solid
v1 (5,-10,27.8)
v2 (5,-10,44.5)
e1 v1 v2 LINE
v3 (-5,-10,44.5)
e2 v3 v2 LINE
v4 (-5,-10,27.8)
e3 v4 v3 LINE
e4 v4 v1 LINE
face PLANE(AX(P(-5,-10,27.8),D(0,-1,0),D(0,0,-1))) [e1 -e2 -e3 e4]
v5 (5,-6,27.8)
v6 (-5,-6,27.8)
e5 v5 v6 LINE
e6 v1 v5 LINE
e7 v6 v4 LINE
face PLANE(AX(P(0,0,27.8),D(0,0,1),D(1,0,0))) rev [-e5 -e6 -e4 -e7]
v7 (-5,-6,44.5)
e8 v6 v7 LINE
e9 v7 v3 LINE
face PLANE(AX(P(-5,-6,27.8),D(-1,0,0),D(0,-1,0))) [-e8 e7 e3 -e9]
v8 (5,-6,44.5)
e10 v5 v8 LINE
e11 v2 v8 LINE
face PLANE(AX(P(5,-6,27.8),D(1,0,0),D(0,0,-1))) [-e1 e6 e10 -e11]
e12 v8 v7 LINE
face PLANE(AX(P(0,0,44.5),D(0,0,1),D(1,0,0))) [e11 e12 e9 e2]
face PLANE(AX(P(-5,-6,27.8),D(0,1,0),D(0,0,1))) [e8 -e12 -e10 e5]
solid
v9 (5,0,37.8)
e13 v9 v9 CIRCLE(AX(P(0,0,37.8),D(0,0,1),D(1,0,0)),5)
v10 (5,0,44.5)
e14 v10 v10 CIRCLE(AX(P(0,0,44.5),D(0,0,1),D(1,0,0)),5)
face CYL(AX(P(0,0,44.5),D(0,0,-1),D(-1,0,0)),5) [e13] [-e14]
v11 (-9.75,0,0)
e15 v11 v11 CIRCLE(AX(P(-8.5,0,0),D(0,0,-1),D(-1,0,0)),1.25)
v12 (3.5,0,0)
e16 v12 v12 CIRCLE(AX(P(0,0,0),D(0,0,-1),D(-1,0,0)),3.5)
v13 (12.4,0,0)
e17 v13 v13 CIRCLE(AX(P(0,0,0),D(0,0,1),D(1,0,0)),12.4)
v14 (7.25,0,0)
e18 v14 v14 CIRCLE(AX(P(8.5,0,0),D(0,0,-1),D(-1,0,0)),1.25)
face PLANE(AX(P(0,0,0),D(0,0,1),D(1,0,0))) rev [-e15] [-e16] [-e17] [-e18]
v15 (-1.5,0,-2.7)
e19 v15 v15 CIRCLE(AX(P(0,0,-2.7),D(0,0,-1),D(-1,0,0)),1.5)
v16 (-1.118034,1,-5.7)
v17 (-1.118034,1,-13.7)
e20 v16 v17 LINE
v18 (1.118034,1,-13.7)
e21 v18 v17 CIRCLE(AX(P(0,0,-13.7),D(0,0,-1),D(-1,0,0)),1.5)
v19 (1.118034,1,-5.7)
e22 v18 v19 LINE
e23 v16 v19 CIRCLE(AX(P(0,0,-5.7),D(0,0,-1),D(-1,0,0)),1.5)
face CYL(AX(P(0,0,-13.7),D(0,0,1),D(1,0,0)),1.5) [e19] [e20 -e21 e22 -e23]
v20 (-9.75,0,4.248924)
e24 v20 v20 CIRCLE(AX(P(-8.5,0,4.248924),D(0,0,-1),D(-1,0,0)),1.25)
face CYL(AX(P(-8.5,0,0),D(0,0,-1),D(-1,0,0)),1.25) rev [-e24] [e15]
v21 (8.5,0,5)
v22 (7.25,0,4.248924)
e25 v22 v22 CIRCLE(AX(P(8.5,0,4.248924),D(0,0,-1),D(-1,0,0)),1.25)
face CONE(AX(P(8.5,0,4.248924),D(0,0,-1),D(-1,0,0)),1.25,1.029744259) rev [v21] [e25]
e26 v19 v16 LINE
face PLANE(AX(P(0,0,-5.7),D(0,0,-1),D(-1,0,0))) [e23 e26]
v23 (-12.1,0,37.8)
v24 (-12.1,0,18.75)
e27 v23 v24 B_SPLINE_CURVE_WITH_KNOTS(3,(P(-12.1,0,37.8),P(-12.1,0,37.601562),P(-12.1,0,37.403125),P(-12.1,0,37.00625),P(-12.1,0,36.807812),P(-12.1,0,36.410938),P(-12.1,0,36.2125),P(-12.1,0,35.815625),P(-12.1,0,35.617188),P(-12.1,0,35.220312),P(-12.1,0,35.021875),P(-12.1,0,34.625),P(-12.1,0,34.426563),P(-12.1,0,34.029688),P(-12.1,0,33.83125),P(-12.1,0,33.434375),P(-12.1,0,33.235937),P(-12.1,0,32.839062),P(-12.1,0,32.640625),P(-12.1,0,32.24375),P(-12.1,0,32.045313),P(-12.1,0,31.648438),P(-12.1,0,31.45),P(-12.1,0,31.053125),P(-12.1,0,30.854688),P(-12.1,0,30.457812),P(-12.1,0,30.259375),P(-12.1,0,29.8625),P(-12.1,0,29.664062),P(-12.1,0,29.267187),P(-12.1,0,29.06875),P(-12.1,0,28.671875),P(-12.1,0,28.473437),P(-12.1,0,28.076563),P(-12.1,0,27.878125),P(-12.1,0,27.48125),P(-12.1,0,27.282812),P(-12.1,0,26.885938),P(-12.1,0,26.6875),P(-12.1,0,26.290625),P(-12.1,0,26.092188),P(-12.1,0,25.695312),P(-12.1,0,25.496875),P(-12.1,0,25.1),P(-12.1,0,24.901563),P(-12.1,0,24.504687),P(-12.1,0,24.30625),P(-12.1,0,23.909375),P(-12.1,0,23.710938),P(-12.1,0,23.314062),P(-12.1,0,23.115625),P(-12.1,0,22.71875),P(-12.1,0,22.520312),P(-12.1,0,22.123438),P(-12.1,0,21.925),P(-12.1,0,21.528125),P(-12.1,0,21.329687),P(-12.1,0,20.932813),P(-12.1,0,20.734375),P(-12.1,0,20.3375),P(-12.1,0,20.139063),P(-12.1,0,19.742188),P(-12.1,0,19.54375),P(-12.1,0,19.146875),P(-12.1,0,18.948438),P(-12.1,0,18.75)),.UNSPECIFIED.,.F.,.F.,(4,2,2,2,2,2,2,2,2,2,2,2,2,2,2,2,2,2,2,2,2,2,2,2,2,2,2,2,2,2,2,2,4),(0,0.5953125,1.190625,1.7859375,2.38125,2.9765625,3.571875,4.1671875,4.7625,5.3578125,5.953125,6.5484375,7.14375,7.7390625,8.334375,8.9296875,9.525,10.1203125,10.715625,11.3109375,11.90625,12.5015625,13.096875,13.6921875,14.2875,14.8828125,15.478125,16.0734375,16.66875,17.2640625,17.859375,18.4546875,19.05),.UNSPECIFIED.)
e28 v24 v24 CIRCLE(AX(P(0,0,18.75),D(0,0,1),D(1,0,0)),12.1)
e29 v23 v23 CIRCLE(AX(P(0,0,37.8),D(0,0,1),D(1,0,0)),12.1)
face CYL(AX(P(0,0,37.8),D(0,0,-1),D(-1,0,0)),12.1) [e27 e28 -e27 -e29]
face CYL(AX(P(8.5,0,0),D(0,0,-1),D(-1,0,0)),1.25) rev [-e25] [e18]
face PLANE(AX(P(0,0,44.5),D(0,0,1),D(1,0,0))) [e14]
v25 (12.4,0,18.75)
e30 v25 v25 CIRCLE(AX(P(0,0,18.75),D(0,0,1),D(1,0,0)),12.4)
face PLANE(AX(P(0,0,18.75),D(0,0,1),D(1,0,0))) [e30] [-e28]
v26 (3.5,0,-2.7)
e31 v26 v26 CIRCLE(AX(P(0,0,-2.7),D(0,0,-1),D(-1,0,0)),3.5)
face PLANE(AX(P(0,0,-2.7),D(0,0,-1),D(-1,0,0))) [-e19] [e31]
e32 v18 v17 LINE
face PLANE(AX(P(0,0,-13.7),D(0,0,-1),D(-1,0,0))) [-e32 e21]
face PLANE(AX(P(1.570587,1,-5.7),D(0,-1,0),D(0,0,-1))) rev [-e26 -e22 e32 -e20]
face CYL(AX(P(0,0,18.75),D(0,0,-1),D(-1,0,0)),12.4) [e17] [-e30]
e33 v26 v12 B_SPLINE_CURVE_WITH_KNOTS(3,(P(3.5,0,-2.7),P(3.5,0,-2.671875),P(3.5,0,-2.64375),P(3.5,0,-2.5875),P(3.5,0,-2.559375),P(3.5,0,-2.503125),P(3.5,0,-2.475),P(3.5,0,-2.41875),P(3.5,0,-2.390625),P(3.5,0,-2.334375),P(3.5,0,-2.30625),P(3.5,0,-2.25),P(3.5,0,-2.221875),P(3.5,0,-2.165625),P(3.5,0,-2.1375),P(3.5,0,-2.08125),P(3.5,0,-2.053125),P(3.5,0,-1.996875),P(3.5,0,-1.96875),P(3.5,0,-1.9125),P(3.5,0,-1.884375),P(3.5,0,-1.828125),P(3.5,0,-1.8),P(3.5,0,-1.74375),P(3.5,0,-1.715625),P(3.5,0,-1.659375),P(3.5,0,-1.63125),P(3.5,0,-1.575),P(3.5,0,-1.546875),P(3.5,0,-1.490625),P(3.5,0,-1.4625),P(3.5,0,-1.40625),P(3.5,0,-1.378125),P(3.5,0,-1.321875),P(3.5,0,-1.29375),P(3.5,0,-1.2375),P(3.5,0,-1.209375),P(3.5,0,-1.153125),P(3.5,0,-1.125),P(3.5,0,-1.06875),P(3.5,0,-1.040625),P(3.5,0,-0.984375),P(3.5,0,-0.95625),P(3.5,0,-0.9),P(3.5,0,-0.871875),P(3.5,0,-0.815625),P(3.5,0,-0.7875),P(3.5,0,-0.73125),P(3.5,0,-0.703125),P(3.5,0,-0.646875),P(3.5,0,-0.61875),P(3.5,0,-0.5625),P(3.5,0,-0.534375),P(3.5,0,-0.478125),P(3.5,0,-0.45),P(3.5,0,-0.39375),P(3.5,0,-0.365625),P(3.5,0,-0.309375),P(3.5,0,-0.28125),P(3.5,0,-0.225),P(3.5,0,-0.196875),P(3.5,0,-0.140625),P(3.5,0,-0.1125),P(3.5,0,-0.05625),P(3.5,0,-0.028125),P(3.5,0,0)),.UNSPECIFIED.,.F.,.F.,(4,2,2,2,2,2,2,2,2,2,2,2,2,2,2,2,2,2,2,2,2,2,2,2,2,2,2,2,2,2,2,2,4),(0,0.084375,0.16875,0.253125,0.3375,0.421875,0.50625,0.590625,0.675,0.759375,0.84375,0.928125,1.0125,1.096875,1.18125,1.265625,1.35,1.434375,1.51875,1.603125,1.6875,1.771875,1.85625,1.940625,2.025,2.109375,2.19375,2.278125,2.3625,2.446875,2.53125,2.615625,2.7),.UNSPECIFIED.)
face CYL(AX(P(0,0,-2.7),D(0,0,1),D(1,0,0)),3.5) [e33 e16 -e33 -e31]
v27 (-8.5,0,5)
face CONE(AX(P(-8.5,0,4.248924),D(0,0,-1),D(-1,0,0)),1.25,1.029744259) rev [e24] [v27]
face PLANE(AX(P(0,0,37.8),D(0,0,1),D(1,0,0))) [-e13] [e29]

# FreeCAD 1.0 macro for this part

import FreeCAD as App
import Part
import Sketcher
from FreeCAD import Vector
Q = App.Units.Quantity


def add_polygon(sketch, points):
    """Adds a closed chain of lines whose ends are joined by coincident constraints."""
    first, n = sketch.GeometryCount, len(points)
    for a, b in zip(points, points[1:] + points[:1]):
        sketch.addGeometry(Part.LineSegment(App.Vector(*a, 0), App.Vector(*b, 0)), False)
    for i in range(n):
        sketch.addConstraint(Sketcher.Constraint("Coincident", first + i, 2, first + (i + 1) % n, 1))

doc = App.newDocument("Part")
body = doc.addObject("PartDesign::Body", "Body")

sketch1 = body.newObject("Sketcher::SketchObject", "Sketch")
sketch1.AttachmentSupport = (doc.getObject("XY_Plane"), [""])
sketch1.MapMode = "FlatFace"
sketch1.addGeometry(Part.Circle(Vector(0, 0, 0), Vector(0, 0, 1), 12), False)
sketch1.addConstraint(Sketcher.Constraint("Coincident", 0, 3, -1, 1))
sketch1.addConstraint(Sketcher.Constraint("Diameter", 0, Q("24.8 mm")))
pad1 = body.newObject("PartDesign::Pad", "Pad")
pad1.Profile = sketch1
pad1.Length = 18.75

sketch2 = body.newObject("Sketcher::SketchObject", "Sketch001")
sketch2.AttachmentSupport = (doc.getObject("XY_Plane"), [""])
sketch2.MapMode = "FlatFace"
sketch2.AttachmentOffset = App.Placement(Vector(0, 0, 18.75), App.Rotation())
sketch2.addGeometry(Part.Circle(Vector(0, 0, 0), Vector(0, 0, 1), 12), False)
sketch2.addConstraint(Sketcher.Constraint("Coincident", 0, 3, -1, 1))
sketch2.addConstraint(Sketcher.Constraint("Diameter", 0, Q("24.2 mm")))
pad2 = body.newObject("PartDesign::Pad", "Pad001")
pad2.Profile = sketch2
pad2.Length = 19.05

sketch3 = body.newObject("Sketcher::SketchObject", "Sketch002")
sketch3.AttachmentSupport = (doc.getObject("XY_Plane"), [""])
sketch3.MapMode = "FlatFace"
sketch3.addGeometry(Part.Circle(Vector(0, 0, 0), Vector(0, 0, 1), 3.5), False)
sketch3.addConstraint(Sketcher.Constraint("Coincident", 0, 3, -1, 1))
sketch3.addConstraint(Sketcher.Constraint("Diameter", 0, Q("7 mm")))
pad3 = body.newObject("PartDesign::Pad", "Pad002")
pad3.Profile = sketch3
pad3.Length = 2.7
pad3.Reversed = True

sketch4 = body.newObject("Sketcher::SketchObject", "Sketch003")
sketch4.AttachmentSupport = (doc.getObject("XY_Plane"), [""])
sketch4.MapMode = "FlatFace"
sketch4.AttachmentOffset = App.Placement(Vector(0, 0, -2.7), App.Rotation())
sketch4.addGeometry(Part.Circle(Vector(0, 0, 0), Vector(0, 0, 1), 1.5), False)
sketch4.addConstraint(Sketcher.Constraint("Coincident", 0, 3, -1, 1))
sketch4.addConstraint(Sketcher.Constraint("Diameter", 0, Q("3 mm")))
pad4 = body.newObject("PartDesign::Pad", "Pad003")
pad4.Profile = sketch4
pad4.Length = 11
pad4.Reversed = True

sketch5 = body.newObject("Sketcher::SketchObject", "Sketch004")
sketch5.AttachmentSupport = (doc.getObject("XY_Plane"), [""])
sketch5.MapMode = "FlatFace"
sketch5.AttachmentOffset = App.Placement(Vector(0, 0, -13.7), App.Rotation())
add_polygon(sketch5, [(1.6, 2.7), (1.6, 1), (-2.2, 1), (-2.2, 2.7)])
sketch5.addConstraint(Sketcher.Constraint("Vertical", 0))
sketch5.addConstraint(Sketcher.Constraint("Horizontal", 1))
sketch5.addConstraint(Sketcher.Constraint("Vertical", 2))
sketch5.addConstraint(Sketcher.Constraint("Horizontal", 3))
sketch5.addConstraint(Sketcher.Constraint("DistanceY", -1, 1, 0, 2, Q("1 mm")))
sketch5.addConstraint(Sketcher.Constraint("DistanceX", 1, 2, 1, 1, Q("3.744659 mm")))
sketch5.addConstraint(Sketcher.Constraint("DistanceY", 0, 2, 0, 1, Q("1.716919 mm")))
sketch5.addConstraint(Sketcher.Constraint("DistanceX", 1, 2, -1, 1, Q("2.174072 mm")))
pocket1 = body.newObject("PartDesign::Pocket", "Pocket")
pocket1.Profile = sketch5
pocket1.Length = 8
pocket1.Reversed = True

sketch6 = body.newObject("Sketcher::SketchObject", "Sketch005")
sketch6.AttachmentSupport = (doc.getObject("XY_Plane"), [""])
sketch6.MapMode = "FlatFace"
sketch6.AttachmentOffset = App.Placement(Vector(0, 0, 37.8), App.Rotation())
sketch6.addGeometry(Part.Circle(Vector(0, 0, 0), Vector(0, 0, 1), 5), False)
sketch6.addConstraint(Sketcher.Constraint("Coincident", 0, 3, -1, 1))
sketch6.addConstraint(Sketcher.Constraint("Diameter", 0, Q("10 mm")))
pad5 = body.newObject("PartDesign::Pad", "Pad004")
pad5.Profile = sketch6
pad5.Length = 6.7

sketch7 = body.newObject("Sketcher::SketchObject", "Sketch006")
sketch7.AttachmentSupport = (doc.getObject("YZ_Plane"), [""])
sketch7.MapMode = "FlatFace"
sketch7.AttachmentOffset = App.Placement(Vector(0, 0, -8.5), App.Rotation())
add_polygon(sketch7, [(0, 5), (0, 0), (1.2, 0), (1.2, 4.2)])
sketch7.addConstraint(Sketcher.Constraint("Vertical", 0))
sketch7.addConstraint(Sketcher.Constraint("Horizontal", 1))
sketch7.addConstraint(Sketcher.Constraint("Vertical", 2))
sketch7.addConstraint(Sketcher.Constraint("Coincident", 0, 2, -1, 1))
sketch7.addConstraint(Sketcher.Constraint("DistanceY", 0, 2, 0, 1, Q("5 mm")))
sketch7.addConstraint(Sketcher.Constraint("Angle", 3, Q("149 deg")))
sketch7.addConstraint(Sketcher.Constraint("DistanceX", 1, 1, 1, 2, Q("1.25 mm")))
groove = body.newObject("PartDesign::Groove", "Groove")
groove.Profile = sketch7
groove.ReferenceAxis = (sketch7, ["V_Axis"])
groove.Angle = 360
doc.recompute()

linearpattern = body.newObject("PartDesign::LinearPattern", "LinearPattern")
linearpattern.Originals = [groove]
linearpattern.Direction = (doc.getObject("X_Axis"), [""])
linearpattern.Mode = "offset"
linearpattern.Offset = 17
linearpattern.Occurrences = 2
body.Tip = linearpattern
body2 = doc.addObject("PartDesign::Body", "Body001")

sketch8 = body2.newObject("Sketcher::SketchObject", "Sketch007")
sketch8.AttachmentSupport = (doc.getObject("XY_Plane001"), [""])
sketch8.MapMode = "FlatFace"
sketch8.AttachmentOffset = App.Placement(Vector(0, 0, 44.5), App.Rotation())
add_polygon(sketch8, [(-5, -6), (-5, -10), (5, -10), (5, -6)])
sketch8.addConstraint(Sketcher.Constraint("Vertical", 0))
sketch8.addConstraint(Sketcher.Constraint("Horizontal", 1))
sketch8.addConstraint(Sketcher.Constraint("Vertical", 2))
sketch8.addConstraint(Sketcher.Constraint("Horizontal", 3))
sketch8.addConstraint(Sketcher.Constraint("DistanceX", 1, 1, 1, 2, Q("10 mm")))
sketch8.addConstraint(Sketcher.Constraint("DistanceY", 0, 2, 0, 1, Q("4 mm")))
sketch8.addConstraint(Sketcher.Constraint("DistanceX", 0, 2, -1, 1, Q("5 mm")))
sketch8.addConstraint(Sketcher.Constraint("DistanceY", 0, 2, -1, 1, Q("10 mm")))
pad6 = body2.newObject("PartDesign::Pad", "Pad005")
pad6.Profile = sketch8
pad6.Length = 16.7
pad6.Reversed = True

doc.recompute()
